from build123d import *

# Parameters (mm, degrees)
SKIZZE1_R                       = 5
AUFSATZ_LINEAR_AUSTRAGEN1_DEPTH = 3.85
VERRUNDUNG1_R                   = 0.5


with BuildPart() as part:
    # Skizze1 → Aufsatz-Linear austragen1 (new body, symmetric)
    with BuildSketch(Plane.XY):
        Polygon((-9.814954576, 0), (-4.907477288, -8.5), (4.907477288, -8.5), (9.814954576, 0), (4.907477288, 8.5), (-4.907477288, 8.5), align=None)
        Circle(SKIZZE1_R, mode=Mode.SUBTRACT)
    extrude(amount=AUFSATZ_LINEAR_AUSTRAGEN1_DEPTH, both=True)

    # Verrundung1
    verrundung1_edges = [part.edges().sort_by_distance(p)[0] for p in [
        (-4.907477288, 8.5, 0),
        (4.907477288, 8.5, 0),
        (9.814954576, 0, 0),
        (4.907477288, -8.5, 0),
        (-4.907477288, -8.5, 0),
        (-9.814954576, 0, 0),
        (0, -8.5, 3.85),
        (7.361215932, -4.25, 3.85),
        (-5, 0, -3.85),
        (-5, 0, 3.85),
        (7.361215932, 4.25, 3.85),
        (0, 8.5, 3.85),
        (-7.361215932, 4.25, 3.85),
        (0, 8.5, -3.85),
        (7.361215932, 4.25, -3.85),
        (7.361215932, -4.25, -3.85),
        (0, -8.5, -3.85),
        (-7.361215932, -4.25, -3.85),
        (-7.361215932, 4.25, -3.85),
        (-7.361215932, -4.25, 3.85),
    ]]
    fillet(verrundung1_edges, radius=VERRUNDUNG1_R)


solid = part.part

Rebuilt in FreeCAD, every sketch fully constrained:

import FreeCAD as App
import Part
import Sketcher
from FreeCAD import Vector
Q = App.Units.Quantity


def add_polygon(sketch, points):
    """Adds a closed chain of lines whose ends are joined by coincident constraints."""
    first, n = sketch.GeometryCount, len(points)
    for a, b in zip(points, points[1:] + points[:1]):
        sketch.addGeometry(Part.LineSegment(App.Vector(*a, 0), App.Vector(*b, 0)), False)
    for i in range(n):
        sketch.addConstraint(Sketcher.Constraint("Coincident", first + i, 2, first + (i + 1) % n, 1))

doc = App.newDocument("Part")
params = doc.addObject("Spreadsheet::Sheet", "Params")
for row, (alias, value) in enumerate([
    ("sketch1_diameter", "10 mm"),
    ("pad1_length", "7.7 mm"),
    ("fillet_radius", "0.5 mm"),
], start=1):
    params.set(f"A{row}", alias)
    params.set(f"B{row}", "=" + value)
    params.setAlias(f"B{row}", alias)

body = doc.addObject("PartDesign::Body", "Body")

# Sketch on XY plane
sketch1 = body.newObject("Sketcher::SketchObject", "Sketch")
sketch1.AttachmentSupport = (doc.getObject("XY_Plane"), [""])
sketch1.MapMode = "FlatFace"
add_polygon(sketch1, [(-10, 0), (-5, -8), (5, -8), (10, 0), (5, 8), (-5, 8)])  # lines 0-5
sketch1.addGeometry(Part.Circle(Vector(0, 0, 0), Vector(0, 0, 1), 5), False)  # 6
sketch1.addConstraint([
    Sketcher.Constraint("Horizontal", 1),
    Sketcher.Constraint("Horizontal", 4),
    Sketcher.Constraint("Coincident", 6, 3, -1, 1),
    Sketcher.Constraint("Symmetric", 0, 2, 3, 2, -1, 1),
    Sketcher.Constraint("Symmetric", 2, 2, 5, 2, -1, 1),
    Sketcher.Constraint("PointOnObject", 2, 2, -1),
    Sketcher.Constraint("Parallel", 2, 5),
    Sketcher.Constraint("Vertical", 1, 2, 3, 2),
    Sketcher.Constraint("Diameter", 6, 10.0),
    Sketcher.Constraint("Angle", 0, Q("-60 deg")),
    Sketcher.Constraint("DistanceY", 1, 2, 3, 2, 17.0),
    Sketcher.Constraint("DistanceX", 1, 1, 1, 2, 9.814955),
])
sketch1.setExpression("Constraints[14]", "Params.sketch1_diameter")
pad1 = body.newObject("PartDesign::Pad", "Pad")
pad1.Profile = sketch1
pad1.setExpression("Length", "Params.pad1_length")
pad1.Midplane = True
doc.recompute()

fillet = body.newObject("PartDesign::Fillet", "Fillet")
fillet.Base = (pad1, ["Edge1"])
fillet.UseAllEdges = True
fillet.setExpression("Radius", "Params.fillet_radius")

doc.recompute()
